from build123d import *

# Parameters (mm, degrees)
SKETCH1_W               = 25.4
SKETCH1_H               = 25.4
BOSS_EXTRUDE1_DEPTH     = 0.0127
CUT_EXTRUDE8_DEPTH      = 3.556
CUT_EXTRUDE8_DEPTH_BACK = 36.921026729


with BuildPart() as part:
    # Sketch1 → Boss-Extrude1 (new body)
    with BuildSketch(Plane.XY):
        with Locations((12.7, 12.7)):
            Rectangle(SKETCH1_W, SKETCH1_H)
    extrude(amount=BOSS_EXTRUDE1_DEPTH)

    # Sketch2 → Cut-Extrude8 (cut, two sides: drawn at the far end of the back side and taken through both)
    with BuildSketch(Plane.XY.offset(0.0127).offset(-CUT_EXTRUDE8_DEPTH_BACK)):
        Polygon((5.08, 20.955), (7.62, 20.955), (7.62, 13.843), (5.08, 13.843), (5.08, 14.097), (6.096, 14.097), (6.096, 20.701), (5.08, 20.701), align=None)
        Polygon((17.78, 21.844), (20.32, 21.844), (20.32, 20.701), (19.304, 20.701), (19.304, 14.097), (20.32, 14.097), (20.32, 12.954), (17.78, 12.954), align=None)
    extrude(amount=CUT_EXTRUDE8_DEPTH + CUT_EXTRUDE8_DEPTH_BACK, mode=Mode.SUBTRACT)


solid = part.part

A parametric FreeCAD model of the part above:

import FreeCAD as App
import Part
import Sketcher
Q = App.Units.Quantity

doc = App.newDocument("Part")
body = doc.addObject("PartDesign::Body", "Body")

sketch1 = body.newObject("Sketcher::SketchObject", "Sketch")
sketch1.AttachmentSupport = (doc.getObject("XY_Plane"), [""])
sketch1.MapMode = "FlatFace"
sketch1.addGeometry([
    Part.LineSegment(App.Vector(0, 25.4, 0), App.Vector(0, 0, 0)),
    Part.LineSegment(App.Vector(0, 0, 0), App.Vector(25.4, 0, 0)),
    Part.LineSegment(App.Vector(25.4, 0, 0), App.Vector(25.4, 25.4, 0)),
    Part.LineSegment(App.Vector(25.4, 25.4, 0), App.Vector(0, 25.4, 0)),
], False)
sketch1.addConstraint([
    Sketcher.Constraint("Coincident", 0, 2, 1, 1),
    Sketcher.Constraint("Coincident", 1, 2, 2, 1),
    Sketcher.Constraint("Coincident", 2, 2, 3, 1),
    Sketcher.Constraint("Coincident", 3, 2, 0, 1),
    Sketcher.Constraint("Vertical", 0),
    Sketcher.Constraint("Horizontal", 1),
    Sketcher.Constraint("Vertical", 2),
    Sketcher.Constraint("Horizontal", 3),
    Sketcher.Constraint("Coincident", 0, 2, -1, 1),
    Sketcher.Constraint("Equal", 3, 0),
    Sketcher.Constraint("DistanceX", 1, 1, 1, 2, Q("1 in")),
])
pad1 = body.newObject("PartDesign::Pad", "Pad")
pad1.Profile = sketch1
pad1.Length = Q("0.0005 in")

sketch2 = body.newObject("Sketcher::SketchObject", "Sketch001")
sketch2.AttachmentSupport = (doc.getObject("XY_Plane"), [""])
sketch2.MapMode = "FlatFace"
sketch2.AttachmentOffset = App.Placement(App.Vector(0, 0, 0.0005 * 25.4), App.Rotation())
sketch2.addGeometry([
    Part.LineSegment(App.Vector(7.62, 20.955, 0), App.Vector(5.08, 20.955, 0)),
    Part.LineSegment(App.Vector(5.08, 20.955, 0), App.Vector(5.08, 20.701, 0)),
    Part.LineSegment(App.Vector(5.08, 20.701, 0), App.Vector(6.096, 20.701, 0)),
    Part.LineSegment(App.Vector(6.096, 20.701, 0), App.Vector(6.096, 14.097, 0)),
    Part.LineSegment(App.Vector(6.096, 14.097, 0), App.Vector(5.08, 14.097, 0)),
    Part.LineSegment(App.Vector(5.08, 14.097, 0), App.Vector(5.08, 13.843, 0)),
    Part.LineSegment(App.Vector(5.08, 13.843, 0), App.Vector(7.62, 13.843, 0)),
    Part.LineSegment(App.Vector(7.62, 13.843, 0), App.Vector(7.62, 20.955, 0)),
    Part.LineSegment(App.Vector(20.32, 21.844, 0), App.Vector(17.78, 21.844, 0)),
    Part.LineSegment(App.Vector(17.78, 21.844, 0), App.Vector(17.78, 12.954, 0)),
    Part.LineSegment(App.Vector(17.78, 12.954, 0), App.Vector(20.32, 12.954, 0)),
    Part.LineSegment(App.Vector(20.32, 12.954, 0), App.Vector(20.32, 14.097, 0)),
    Part.LineSegment(App.Vector(20.32, 14.097, 0), App.Vector(19.304, 14.097, 0)),
    Part.LineSegment(App.Vector(19.304, 14.097, 0), App.Vector(19.304, 20.701, 0)),
    Part.LineSegment(App.Vector(19.304, 20.701, 0), App.Vector(20.32, 20.701, 0)),
    Part.LineSegment(App.Vector(20.32, 20.701, 0), App.Vector(20.32, 21.844, 0)),
], False)
sketch2.addConstraint([
    Sketcher.Constraint("Coincident", 0, 2, 1, 1),
    Sketcher.Constraint("Coincident", 1, 2, 2, 1),
    Sketcher.Constraint("Coincident", 2, 2, 3, 1),
    Sketcher.Constraint("Coincident", 3, 2, 4, 1),
    Sketcher.Constraint("Coincident", 4, 2, 5, 1),
    Sketcher.Constraint("Coincident", 5, 2, 6, 1),
    Sketcher.Constraint("Coincident", 6, 2, 7, 1),
    Sketcher.Constraint("Coincident", 7, 2, 0, 1),
    Sketcher.Constraint("Coincident", 8, 2, 9, 1),
    Sketcher.Constraint("Coincident", 9, 2, 10, 1),
    Sketcher.Constraint("Coincident", 10, 2, 11, 1),
    Sketcher.Constraint("Coincident", 11, 2, 12, 1),
    Sketcher.Constraint("Coincident", 12, 2, 13, 1),
    Sketcher.Constraint("Coincident", 13, 2, 14, 1),
    Sketcher.Constraint("Coincident", 14, 2, 15, 1),
    Sketcher.Constraint("Coincident", 15, 2, 8, 1),
    Sketcher.Constraint("Horizontal", 0),
    Sketcher.Constraint("Vertical", 1),
    Sketcher.Constraint("Horizontal", 2),
    Sketcher.Constraint("Vertical", 3),
    Sketcher.Constraint("Horizontal", 4),
    Sketcher.Constraint("Vertical", 5),
    Sketcher.Constraint("Horizontal", 6),
    Sketcher.Constraint("Vertical", 7),
    Sketcher.Constraint("Horizontal", 8),
    Sketcher.Constraint("Vertical", 9),
    Sketcher.Constraint("Horizontal", 10),
    Sketcher.Constraint("Vertical", 11),
    Sketcher.Constraint("Horizontal", 12),
    Sketcher.Constraint("Vertical", 13),
    Sketcher.Constraint("Horizontal", 14),
    Sketcher.Constraint("Vertical", 15),
    Sketcher.Constraint("Horizontal", 4, 2, 11, 2),
    Sketcher.Constraint("Horizontal", 2, 2, 13, 2),
    Sketcher.Constraint("Vertical", 1, 2, 4, 2),
    Sketcher.Constraint("Vertical", 11, 2, 14, 2),
    Sketcher.Constraint("Equal", 6, 8),
    Sketcher.Constraint("Equal", 4, 12),
    Sketcher.Constraint("Equal", 1, 5),
    Sketcher.Constraint("Equal", 11, 15),
    Sketcher.Constraint("DistanceX", 0, 2, 0, 1, Q("0.1 in")),
    Sketcher.Constraint("DistanceX", 2, 1, 2, 2, Q("0.04 in")),
    Sketcher.Constraint("DistanceY", 1, 2, 1, 1, Q("0.01 in")),
    Sketcher.Constraint("DistanceY", 3, 2, 3, 1, Q("0.26 in")),
    Sketcher.Constraint("DistanceY", 9, 2, 9, 1, Q("0.35 in")),
    Sketcher.Constraint("DistanceX", -1, 1, 0, 2, Q("0.2 in")),
    Sketcher.Constraint("DistanceX", -1, 1, 8, 2, Q("0.7 in")),
    Sketcher.Constraint("DistanceY", -1, 1, 8, 2, Q("0.86 in")),
])
pocket1 = body.newObject("PartDesign::Pocket", "Pocket")
pocket1.Profile = sketch2
pocket1.Type = "ThroughAll"
pocket1.Midplane = True

doc.recompute()
